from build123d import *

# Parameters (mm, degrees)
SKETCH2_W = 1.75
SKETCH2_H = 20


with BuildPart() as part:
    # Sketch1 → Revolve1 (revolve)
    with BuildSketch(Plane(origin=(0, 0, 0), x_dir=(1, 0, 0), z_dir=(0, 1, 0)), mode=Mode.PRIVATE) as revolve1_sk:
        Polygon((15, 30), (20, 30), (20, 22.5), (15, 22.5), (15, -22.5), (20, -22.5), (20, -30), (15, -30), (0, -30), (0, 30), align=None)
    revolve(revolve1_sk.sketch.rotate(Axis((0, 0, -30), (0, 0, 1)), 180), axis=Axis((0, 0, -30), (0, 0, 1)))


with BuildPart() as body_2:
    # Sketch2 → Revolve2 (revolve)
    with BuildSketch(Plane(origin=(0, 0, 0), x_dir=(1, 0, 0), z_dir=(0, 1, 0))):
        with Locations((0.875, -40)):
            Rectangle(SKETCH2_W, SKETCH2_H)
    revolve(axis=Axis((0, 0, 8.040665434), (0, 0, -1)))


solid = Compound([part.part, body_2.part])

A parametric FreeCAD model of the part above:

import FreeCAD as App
import Part
import Sketcher
Q = App.Units.Quantity


def add_polygon(sketch, points):
    """Adds a closed chain of lines whose ends are joined by coincident constraints."""
    first, n = sketch.GeometryCount, len(points)
    for a, b in zip(points, points[1:] + points[:1]):
        sketch.addGeometry(Part.LineSegment(App.Vector(*a, 0), App.Vector(*b, 0)), False)
    for i in range(n):
        sketch.addConstraint(Sketcher.Constraint("Coincident", first + i, 2, first + (i + 1) % n, 1))

doc = App.newDocument("Part")
body = doc.addObject("PartDesign::Body", "Body")

# Sketch on XZ plane
sketch1 = doc.addObject("Sketcher::SketchObject", "Sketch")
body.addObject(sketch1)
sketch1.AttachmentSupport = (doc.XZ_Plane, [""])
sketch1.MapMode = "FlatFace"
add_polygon(sketch1, [(20, -30), (0, -30), (0, 30), (20, 30), (20, 22), (15, 22), (15, -22), (20, -22)])  # lines 0-7
sketch1.addConstraint(Sketcher.Constraint("Horizontal", 0))
sketch1.addConstraint(Sketcher.Constraint("Vertical", 1))
sketch1.addConstraint(Sketcher.Constraint("Horizontal", 2))
sketch1.addConstraint(Sketcher.Constraint("Vertical", 3))
sketch1.addConstraint(Sketcher.Constraint("Horizontal", 4))
sketch1.addConstraint(Sketcher.Constraint("Vertical", 5))
sketch1.addConstraint(Sketcher.Constraint("Horizontal", 6))
sketch1.addConstraint(Sketcher.Constraint("Vertical", 7))
sketch1.addConstraint(Sketcher.Constraint("Symmetric", 0, 2, 1, 2, -1, 1))
sketch1.addConstraint(Sketcher.Constraint("Symmetric", 3, 2, 6, 2, -1))
sketch1.addConstraint(Sketcher.Constraint("DistanceX", 0, 2, 0, 1, Q("20 mm")))
sketch1.addConstraint(Sketcher.Constraint("DistanceX", 4, 2, 4, 1, Q("5 mm")))
sketch1.addConstraint(Sketcher.Constraint("DistanceY", 1, 1, 1, 2, Q("60 mm")))
sketch1.addConstraint(Sketcher.Constraint("DistanceY", 5, 2, 5, 1, Q("45 mm")))
revolution = doc.addObject("PartDesign::Revolution", "Revolution")
body.addObject(revolution)
revolution.Profile = sketch1
revolution.ReferenceAxis = (sketch1, ["V_Axis"])
revolution.Angle = 360
body2 = doc.addObject("PartDesign::Body", "Body001")

# Sketch on XZ plane
sketch2 = doc.addObject("Sketcher::SketchObject", "Sketch001")
body2.addObject(sketch2)
sketch2.AttachmentSupport = (doc.getObject("XZ_Plane001"), [""])
sketch2.MapMode = "FlatFace"
add_polygon(sketch2, [(0, 30), (0, 50), (1.8, 50), (1.8, 30)])  # lines 0-3
sketch2.addConstraint(Sketcher.Constraint("Vertical", 0))
sketch2.addConstraint(Sketcher.Constraint("Horizontal", 1))
sketch2.addConstraint(Sketcher.Constraint("Vertical", 2))
sketch2.addConstraint(Sketcher.Constraint("Horizontal", 3))
sketch2.addConstraint(Sketcher.Constraint("PointOnObject", 0, 2, -2))
sketch2.addConstraint(Sketcher.Constraint("DistanceY", 0, 1, 0, 2, Q("20 mm")))
sketch2.addConstraint(Sketcher.Constraint("DistanceY", -1, 1, 0, 2, Q("50 mm")))
sketch2.addConstraint(Sketcher.Constraint("DistanceX", 1, 1, 1, 2, Q("1.75 mm")))
revolution2 = doc.addObject("PartDesign::Revolution", "Revolution001")
body2.addObject(revolution2)
revolution2.Profile = sketch2
revolution2.ReferenceAxis = (sketch2, ["V_Axis"])
revolution2.Angle = 360

doc.recompute()
